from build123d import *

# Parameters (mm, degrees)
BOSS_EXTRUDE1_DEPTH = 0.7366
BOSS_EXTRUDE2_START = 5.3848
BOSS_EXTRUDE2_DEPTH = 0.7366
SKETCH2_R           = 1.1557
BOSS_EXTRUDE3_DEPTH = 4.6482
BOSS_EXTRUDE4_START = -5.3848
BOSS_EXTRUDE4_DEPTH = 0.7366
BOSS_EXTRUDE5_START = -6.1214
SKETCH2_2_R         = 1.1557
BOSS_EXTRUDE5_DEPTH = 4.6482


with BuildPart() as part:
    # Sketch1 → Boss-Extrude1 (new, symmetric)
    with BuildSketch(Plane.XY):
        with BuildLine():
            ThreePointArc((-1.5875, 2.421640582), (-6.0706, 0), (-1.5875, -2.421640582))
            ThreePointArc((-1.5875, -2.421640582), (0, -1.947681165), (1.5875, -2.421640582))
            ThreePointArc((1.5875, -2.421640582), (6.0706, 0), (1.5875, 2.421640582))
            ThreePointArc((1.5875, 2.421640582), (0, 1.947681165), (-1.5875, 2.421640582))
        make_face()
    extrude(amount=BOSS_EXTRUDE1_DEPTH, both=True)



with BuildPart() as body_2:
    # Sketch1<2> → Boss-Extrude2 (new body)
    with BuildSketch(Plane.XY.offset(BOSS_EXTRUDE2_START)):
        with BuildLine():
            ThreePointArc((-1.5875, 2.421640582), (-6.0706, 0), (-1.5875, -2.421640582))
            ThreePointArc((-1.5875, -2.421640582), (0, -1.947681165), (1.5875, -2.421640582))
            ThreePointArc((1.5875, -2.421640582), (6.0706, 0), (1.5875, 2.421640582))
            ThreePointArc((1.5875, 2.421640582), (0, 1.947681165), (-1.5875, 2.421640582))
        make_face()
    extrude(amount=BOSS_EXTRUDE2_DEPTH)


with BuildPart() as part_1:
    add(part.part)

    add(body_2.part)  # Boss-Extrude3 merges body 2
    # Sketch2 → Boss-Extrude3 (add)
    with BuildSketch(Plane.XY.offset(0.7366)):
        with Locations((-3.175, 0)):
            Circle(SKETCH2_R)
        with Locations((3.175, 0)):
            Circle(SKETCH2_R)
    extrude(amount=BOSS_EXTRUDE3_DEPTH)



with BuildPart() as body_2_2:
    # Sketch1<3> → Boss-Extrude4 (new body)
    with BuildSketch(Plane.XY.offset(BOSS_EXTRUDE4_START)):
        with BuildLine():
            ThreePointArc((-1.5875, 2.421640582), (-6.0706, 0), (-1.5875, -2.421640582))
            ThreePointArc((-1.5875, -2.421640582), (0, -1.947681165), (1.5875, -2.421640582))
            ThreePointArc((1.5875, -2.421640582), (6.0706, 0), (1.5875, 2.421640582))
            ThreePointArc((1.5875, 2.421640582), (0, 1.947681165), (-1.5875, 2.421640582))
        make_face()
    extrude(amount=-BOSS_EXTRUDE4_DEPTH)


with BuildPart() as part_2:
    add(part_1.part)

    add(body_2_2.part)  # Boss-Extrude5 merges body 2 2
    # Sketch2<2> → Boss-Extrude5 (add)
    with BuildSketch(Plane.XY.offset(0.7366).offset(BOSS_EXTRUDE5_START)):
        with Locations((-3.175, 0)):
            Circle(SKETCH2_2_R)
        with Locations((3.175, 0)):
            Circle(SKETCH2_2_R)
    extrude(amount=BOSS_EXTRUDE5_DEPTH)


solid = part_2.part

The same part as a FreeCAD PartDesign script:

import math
import FreeCAD as App
import Part
import Sketcher
from FreeCAD import Vector
Q = App.Units.Quantity

doc = App.newDocument("Part")
body = doc.addObject("PartDesign::Body", "Body")

# Sketch on XY plane
sketch1 = body.newObject("Sketcher::SketchObject", "Sketch")
sketch1.AttachmentSupport = (doc.getObject("XY_Plane"), [""])
sketch1.MapMode = "FlatFace"
sketch1.addGeometry(Part.ArcOfCircle(Part.Circle(Vector(-3.2, 0, 0), Vector(0, 0, 1), 2.9), math.radians(57), math.radians(303)), False)
sketch1.addGeometry(Part.ArcOfCircle(Part.Circle(Vector(0, -4.8, 0), Vector(0, 0, 1), 2.9), math.radians(57), math.radians(123)), False)
sketch1.addGeometry(Part.ArcOfCircle(Part.Circle(Vector(3.2, 0, 0), Vector(0, 0, 1), 2.9), math.radians(-123), math.radians(123)), False)
sketch1.addGeometry(Part.ArcOfCircle(Part.Circle(Vector(0, 4.8, 0), Vector(0, 0, 1), 2.9), math.radians(-123), math.radians(-57)), False)
sketch1.addConstraint(Sketcher.Constraint("Tangent", 0, 2, 1, 2))
sketch1.addConstraint(Sketcher.Constraint("Tangent", 1, 1, 2, 1))
sketch1.addConstraint(Sketcher.Constraint("Tangent", 2, 2, 3, 2))
sketch1.addConstraint(Sketcher.Constraint("Tangent", 3, 1, 0, 1))
sketch1.addConstraint(Sketcher.Constraint("Equal", 0, 1))
sketch1.addConstraint(Sketcher.Constraint("Equal", 1, 2))
sketch1.addConstraint(Sketcher.Constraint("Equal", 2, 3))
sketch1.addConstraint(Sketcher.Constraint("Symmetric", 0, 3, 2, 3, -1, 1))
sketch1.addConstraint(Sketcher.Constraint("PointOnObject", 0, 3, -1))
sketch1.addConstraint(Sketcher.Constraint("Radius", 0, Q("0.114 in")))
sketch1.addConstraint(Sketcher.Constraint("DistanceX", 0, 3, 2, 3, Q("0.25 in")))
pad1 = body.newObject("PartDesign::Pad", "Pad")
pad1.Profile = sketch1
pad1.Length = Q("0.058 in")
pad1.Midplane = True
body2 = doc.addObject("PartDesign::Body", "Body001")

# Sketch on XY plane
sketch2 = body2.newObject("Sketcher::SketchObject", "Sketch001")
sketch2.AttachmentSupport = (doc.getObject("XY_Plane001"), [""])
sketch2.MapMode = "FlatFace"
sketch2.AttachmentOffset = App.Placement(Vector(0, 0, 0.212 * 25.4), App.Rotation())
sketch2.addGeometry(Part.ArcOfCircle(Part.Circle(Vector(-3.2, 0, 0), Vector(0, 0, 1), 2.9), math.radians(57), math.radians(303)), False)
sketch2.addGeometry(Part.ArcOfCircle(Part.Circle(Vector(0, -4.8, 0), Vector(0, 0, 1), 2.9), math.radians(57), math.radians(123)), False)
sketch2.addGeometry(Part.ArcOfCircle(Part.Circle(Vector(3.2, 0, 0), Vector(0, 0, 1), 2.9), math.radians(-123), math.radians(123)), False)
sketch2.addGeometry(Part.ArcOfCircle(Part.Circle(Vector(0, 4.8, 0), Vector(0, 0, 1), 2.9), math.radians(-123), math.radians(-57)), False)
sketch2.addConstraint(Sketcher.Constraint("Tangent", 0, 2, 1, 2))
sketch2.addConstraint(Sketcher.Constraint("Tangent", 1, 1, 2, 1))
sketch2.addConstraint(Sketcher.Constraint("Tangent", 2, 2, 3, 2))
sketch2.addConstraint(Sketcher.Constraint("Tangent", 3, 1, 0, 1))
sketch2.addConstraint(Sketcher.Constraint("Equal", 0, 1))
sketch2.addConstraint(Sketcher.Constraint("Equal", 1, 2))
sketch2.addConstraint(Sketcher.Constraint("Equal", 2, 3))
sketch2.addConstraint(Sketcher.Constraint("Symmetric", 0, 3, 2, 3, -1, 1))
sketch2.addConstraint(Sketcher.Constraint("PointOnObject", 0, 3, -1))
sketch2.addConstraint(Sketcher.Constraint("Radius", 0, Q("0.114 in")))
sketch2.addConstraint(Sketcher.Constraint("DistanceX", 0, 3, 2, 3, Q("0.25 in")))
pad2 = body2.newObject("PartDesign::Pad", "Pad001")
pad2.Profile = sketch2
pad2.Length = Q("0.029 in")
body.AllowCompound = True
doc.recompute()

boolean = body.newObject("PartDesign::Boolean", "Boolean")
boolean.Type = "Fuse"
boolean.addObjects([body2])

# Sketch on XY plane
sketch3 = body.newObject("Sketcher::SketchObject", "Sketch002")
sketch3.AttachmentSupport = (doc.getObject("XY_Plane"), [""])
sketch3.MapMode = "FlatFace"
sketch3.AttachmentOffset = App.Placement(Vector(0, 0, 0.029 * 25.4), App.Rotation())
sketch3.addGeometry(Part.Circle(Vector(-3.2, 0, 0), Vector(0, 0, 1), 1.2), False)
sketch3.addGeometry(Part.Circle(Vector(3.2, 0, 0), Vector(0, 0, 1), 1.2), False)
sketch3.addConstraint(Sketcher.Constraint("Equal", 0, 1))
sketch3.addConstraint(Sketcher.Constraint("Symmetric", 0, 3, 1, 3, -1, 1))
sketch3.addConstraint(Sketcher.Constraint("PointOnObject", 0, 3, -1))
sketch3.addConstraint(Sketcher.Constraint("Diameter", 0, Q("0.091 in")))
sketch3.addConstraint(Sketcher.Constraint("DistanceX", 0, 3, 1, 3, Q("0.25 in")))
pad3 = body.newObject("PartDesign::Pad", "Pad002")
pad3.Profile = sketch3
pad3.Length = Q("0.183 in")
body3 = doc.addObject("PartDesign::Body", "Body002")

# Sketch on XY plane
sketch4 = body3.newObject("Sketcher::SketchObject", "Sketch003")
sketch4.AttachmentSupport = (doc.getObject("XY_Plane002"), [""])
sketch4.MapMode = "FlatFace"
sketch4.AttachmentOffset = App.Placement(Vector(0, 0, -0.212 * 25.4), App.Rotation())
sketch4.addGeometry(Part.ArcOfCircle(Part.Circle(Vector(-3.2, 0, 0), Vector(0, 0, 1), 2.9), math.radians(57), math.radians(303)), False)
sketch4.addGeometry(Part.ArcOfCircle(Part.Circle(Vector(0, -4.8, 0), Vector(0, 0, 1), 2.9), math.radians(57), math.radians(123)), False)
sketch4.addGeometry(Part.ArcOfCircle(Part.Circle(Vector(3.2, 0, 0), Vector(0, 0, 1), 2.9), math.radians(-123), math.radians(123)), False)
sketch4.addGeometry(Part.ArcOfCircle(Part.Circle(Vector(0, 4.8, 0), Vector(0, 0, 1), 2.9), math.radians(-123), math.radians(-57)), False)
sketch4.addConstraint(Sketcher.Constraint("Tangent", 0, 2, 1, 2))
sketch4.addConstraint(Sketcher.Constraint("Tangent", 1, 1, 2, 1))
sketch4.addConstraint(Sketcher.Constraint("Tangent", 2, 2, 3, 2))
sketch4.addConstraint(Sketcher.Constraint("Tangent", 3, 1, 0, 1))
sketch4.addConstraint(Sketcher.Constraint("Equal", 0, 1))
sketch4.addConstraint(Sketcher.Constraint("Equal", 1, 2))
sketch4.addConstraint(Sketcher.Constraint("Equal", 2, 3))
sketch4.addConstraint(Sketcher.Constraint("Symmetric", 0, 3, 2, 3, -1, 1))
sketch4.addConstraint(Sketcher.Constraint("PointOnObject", 0, 3, -1))
sketch4.addConstraint(Sketcher.Constraint("Radius", 0, Q("0.114 in")))
sketch4.addConstraint(Sketcher.Constraint("DistanceX", 0, 3, 2, 3, Q("0.25 in")))
pad4 = body3.newObject("PartDesign::Pad", "Pad003")
pad4.Profile = sketch4
pad4.Length = Q("0.029 in")
pad4.Reversed = True
body.AllowCompound = True
doc.recompute()

boolean2 = body.newObject("PartDesign::Boolean", "Boolean001")
boolean2.Type = "Fuse"
boolean2.addObjects([body3])

# Sketch on XY plane
sketch5 = body.newObject("Sketcher::SketchObject", "Sketch004")
sketch5.AttachmentSupport = (doc.getObject("XY_Plane"), [""])
sketch5.MapMode = "FlatFace"
sketch5.AttachmentOffset = App.Placement(Vector(0, 0, -0.212 * 25.4), App.Rotation())
sketch5.addGeometry(Part.Circle(Vector(-3.2, 0, 0), Vector(0, 0, 1), 1.2), False)
sketch5.addGeometry(Part.Circle(Vector(3.2, 0, 0), Vector(0, 0, 1), 1.2), False)
sketch5.addConstraint(Sketcher.Constraint("Equal", 0, 1))
sketch5.addConstraint(Sketcher.Constraint("Symmetric", 0, 3, 1, 3, -1, 1))
sketch5.addConstraint(Sketcher.Constraint("PointOnObject", 0, 3, -1))
sketch5.addConstraint(Sketcher.Constraint("Diameter", 0, Q("0.091 in")))
sketch5.addConstraint(Sketcher.Constraint("DistanceX", 0, 3, 1, 3, Q("0.25 in")))
pad5 = body.newObject("PartDesign::Pad", "Pad004")
pad5.Profile = sketch5
pad5.Length = Q("0.183 in")

doc.recompute()
